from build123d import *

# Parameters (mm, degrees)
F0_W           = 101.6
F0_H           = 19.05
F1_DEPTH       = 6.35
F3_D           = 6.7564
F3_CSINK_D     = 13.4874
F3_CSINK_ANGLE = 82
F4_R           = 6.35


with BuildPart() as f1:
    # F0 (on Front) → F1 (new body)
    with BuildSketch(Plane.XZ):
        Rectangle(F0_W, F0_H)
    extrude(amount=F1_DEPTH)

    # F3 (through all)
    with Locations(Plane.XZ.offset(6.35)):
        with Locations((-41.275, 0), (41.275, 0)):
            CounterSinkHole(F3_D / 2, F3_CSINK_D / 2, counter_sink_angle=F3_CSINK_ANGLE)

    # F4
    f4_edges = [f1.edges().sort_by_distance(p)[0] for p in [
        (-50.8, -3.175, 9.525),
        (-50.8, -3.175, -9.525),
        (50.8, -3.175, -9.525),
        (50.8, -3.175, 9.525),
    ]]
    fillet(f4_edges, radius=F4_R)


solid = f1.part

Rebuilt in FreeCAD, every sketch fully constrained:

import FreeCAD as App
import Part
import Sketcher
Q = App.Units.Quantity


def edges_at(feature, points):
    """Names of the edges that pass closest to the given points."""
    edges = feature.Shape.Edges
    near = lambda p: min(range(len(edges)), key=lambda i: edges[i].distToShape(Part.Vertex(*p))[0])
    return sorted({f"Edge{near(p) + 1}" for p in points})

doc = App.newDocument("Part")
params = doc.addObject("Spreadsheet::Sheet", "Params")
for row, (alias, value) in enumerate([
    ("sketch1_width", "4 in"),
    ("sketch1_height", "0.75 in"),
    ("pad1_length", "0.25 in"),
    ("sketch2_diameter", "0.266 in"),
    ("hole_diameter", "0.266 in"),
    ("hole_csink_diameter", "0.531 in"),
    ("fillet_radius", "0.25 in"),
], start=1):
    params.set(f"A{row}", alias)
    params.set(f"B{row}", "=" + value)
    params.setAlias(f"B{row}", alias)

body = doc.addObject("PartDesign::Body", "Body")

sketch1 = doc.addObject("Sketcher::SketchObject", "Sketch")
body.addObject(sketch1)
sketch1.AttachmentSupport = (doc.XZ_Plane, [""])
sketch1.MapMode = "FlatFace"
sketch1.addGeometry([
    Part.LineSegment(App.Vector(-50.8, 9.525, 0), App.Vector(-50.8, -9.525, 0)),
    Part.LineSegment(App.Vector(-50.8, -9.525, 0), App.Vector(50.8, -9.525, 0)),
    Part.LineSegment(App.Vector(50.8, -9.525, 0), App.Vector(50.8, 9.525, 0)),
    Part.LineSegment(App.Vector(50.8, 9.525, 0), App.Vector(-50.8, 9.525, 0)),
], False)
sketch1.addConstraint([
    Sketcher.Constraint("Coincident", 0, 2, 1, 1),
    Sketcher.Constraint("Coincident", 1, 2, 2, 1),
    Sketcher.Constraint("Coincident", 2, 2, 3, 1),
    Sketcher.Constraint("Coincident", 3, 2, 0, 1),
    Sketcher.Constraint("Vertical", 0),
    Sketcher.Constraint("Horizontal", 1),
    Sketcher.Constraint("Vertical", 2),
    Sketcher.Constraint("Horizontal", 3),
    Sketcher.Constraint("Symmetric", 0, 2, 2, 2, -1, 1),
    Sketcher.Constraint("DistanceX", 1, 1, 1, 2, Q("4 in")),
    Sketcher.Constraint("DistanceY", 0, 2, 0, 1, Q("0.75 in")),
])
sketch1.setExpression("Constraints[9]", "Params.sketch1_width")
sketch1.setExpression("Constraints[10]", "Params.sketch1_height")
pad1 = doc.addObject("PartDesign::Pad", "Pad")
body.addObject(pad1)
pad1.Profile = sketch1
pad1.setExpression("Length", "Params.pad1_length")

sketch2 = doc.addObject("Sketcher::SketchObject", "Sketch001")
body.addObject(sketch2)
sketch2.AttachmentSupport = (doc.XZ_Plane, [""])
sketch2.MapMode = "FlatFace"
sketch2.AttachmentOffset = App.Placement(App.Vector(0, 0, 0.25 * 25.4), App.Rotation())
sketch2.addGeometry([
    Part.Circle(App.Vector(-41.275, 0, 0), App.Vector(0, 0, 1), 3.3782),
    Part.Circle(App.Vector(41.275, 0, 0), App.Vector(0, 0, 1), 3.3782),
], False)
sketch2.addConstraint([
    Sketcher.Constraint("Equal", 0, 1),
    Sketcher.Constraint("Symmetric", 0, 3, 1, 3, -1, 1),
    Sketcher.Constraint("PointOnObject", 0, 3, -1),
    Sketcher.Constraint("Diameter", 0, Q("0.266 in")),
    Sketcher.Constraint("DistanceX", 0, 3, 1, 3, Q("3.25 in")),
])
sketch2.setExpression("Constraints[3]", "Params.sketch2_diameter")
doc.recompute()
hole = doc.addObject("PartDesign::Hole", "Hole")
body.addObject(hole)
hole.Profile = sketch2
hole.ThreadType = "None"
hole.setExpression("Diameter", "Params.hole_diameter")
hole.DepthType = "ThroughAll"
hole.HoleCutType = "Countersink"
hole.setExpression("HoleCutDiameter", "Params.hole_csink_diameter")
hole.HoleCutCountersinkAngle = 82
doc.recompute()

fillet = doc.addObject("PartDesign::Fillet", "Fillet")
body.addObject(fillet)
fillet.Base = (hole, edges_at(hole, [
    (-50.8, -3.175, 9.525),
    (-50.8, -3.175, -9.525),
    (50.8, -3.175, -9.525),
    (50.8, -3.175, 9.525),
]))
fillet.setExpression("Radius", "Params.fillet_radius")

doc.recompute()
